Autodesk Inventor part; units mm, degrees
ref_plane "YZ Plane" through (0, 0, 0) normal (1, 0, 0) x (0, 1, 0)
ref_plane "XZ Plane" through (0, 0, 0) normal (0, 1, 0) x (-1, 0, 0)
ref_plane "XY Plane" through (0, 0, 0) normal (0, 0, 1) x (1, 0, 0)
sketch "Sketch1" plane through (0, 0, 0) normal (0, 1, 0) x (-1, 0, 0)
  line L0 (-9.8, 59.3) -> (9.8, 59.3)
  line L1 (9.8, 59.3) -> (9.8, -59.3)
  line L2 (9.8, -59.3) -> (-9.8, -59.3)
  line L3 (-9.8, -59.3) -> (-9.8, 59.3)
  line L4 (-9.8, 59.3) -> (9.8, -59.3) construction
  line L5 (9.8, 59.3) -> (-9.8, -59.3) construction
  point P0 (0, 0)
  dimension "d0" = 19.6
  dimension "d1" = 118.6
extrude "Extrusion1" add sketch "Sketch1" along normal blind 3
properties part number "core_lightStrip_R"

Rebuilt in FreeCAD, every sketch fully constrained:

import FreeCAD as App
import Part
import Sketcher
from FreeCAD import Vector


def add_polygon(sketch, points):
    """Adds a closed chain of lines whose ends are joined by coincident constraints."""
    first, n = sketch.GeometryCount, len(points)
    for a, b in zip(points, points[1:] + points[:1]):
        sketch.addGeometry(Part.LineSegment(App.Vector(*a, 0), App.Vector(*b, 0)), False)
    for i in range(n):
        sketch.addConstraint(Sketcher.Constraint("Coincident", first + i, 2, first + (i + 1) % n, 1))

doc = App.newDocument("Part")
body = doc.addObject("PartDesign::Body", "Body")

sketch1 = doc.addObject("Sketcher::SketchObject", "Sketch")
body.addObject(sketch1)
sketch1.AttachmentSupport = (doc.XZ_Plane, [""])
sketch1.MapMode = "FlatFace"
add_polygon(sketch1, [(-10, 59), (10, 59), (10, -59), (-10, -59)])
sketch1.addConstraint([
    Sketcher.Constraint("Horizontal", 0),
    Sketcher.Constraint("Vertical", 1),
    Sketcher.Constraint("Horizontal", 2),
    Sketcher.Constraint("Vertical", 3),
    Sketcher.Constraint("Symmetric", 0, 2, 2, 2, -1, 1),
    Sketcher.Constraint("DistanceX", 0, 1, 0, 2, 19.6),
    Sketcher.Constraint("DistanceY", 1, 2, 1, 1, 118.6),
])
pad1 = doc.addObject("PartDesign::Pad", "Pad")
body.addObject(pad1)
pad1.Profile = sketch1
pad1.Length = 3
pad1.Reversed = True

doc.recompute()
